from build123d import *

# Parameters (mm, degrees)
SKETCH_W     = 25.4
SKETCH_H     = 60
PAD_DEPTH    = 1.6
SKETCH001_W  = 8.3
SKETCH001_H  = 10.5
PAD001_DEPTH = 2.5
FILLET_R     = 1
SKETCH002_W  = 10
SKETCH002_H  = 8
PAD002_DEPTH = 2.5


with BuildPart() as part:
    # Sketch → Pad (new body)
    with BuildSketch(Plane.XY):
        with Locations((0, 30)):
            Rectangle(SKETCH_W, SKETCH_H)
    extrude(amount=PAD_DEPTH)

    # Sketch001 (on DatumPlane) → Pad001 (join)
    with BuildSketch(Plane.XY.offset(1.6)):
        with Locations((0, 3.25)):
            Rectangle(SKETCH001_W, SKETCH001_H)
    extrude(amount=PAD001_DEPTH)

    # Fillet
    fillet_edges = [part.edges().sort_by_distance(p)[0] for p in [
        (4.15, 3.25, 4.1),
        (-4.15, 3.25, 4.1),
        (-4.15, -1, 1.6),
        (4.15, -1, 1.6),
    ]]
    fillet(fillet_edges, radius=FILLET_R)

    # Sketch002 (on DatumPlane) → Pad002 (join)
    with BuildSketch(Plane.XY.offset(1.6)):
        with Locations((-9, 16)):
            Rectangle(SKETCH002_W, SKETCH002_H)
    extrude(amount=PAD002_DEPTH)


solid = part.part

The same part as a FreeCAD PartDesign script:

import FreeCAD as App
import Part
import Sketcher
from FreeCAD import Vector


def edges_at(feature, points):
    """Names of the edges that pass closest to the given points."""
    edges = feature.Shape.Edges
    near = lambda p: min(range(len(edges)), key=lambda i: edges[i].distToShape(Part.Vertex(*p))[0])
    return sorted({f"Edge{near(p) + 1}" for p in points})


def add_polygon(sketch, points):
    """Adds a closed chain of lines whose ends are joined by coincident constraints."""
    first, n = sketch.GeometryCount, len(points)
    for a, b in zip(points, points[1:] + points[:1]):
        sketch.addGeometry(Part.LineSegment(App.Vector(*a, 0), App.Vector(*b, 0)), False)
    for i in range(n):
        sketch.addConstraint(Sketcher.Constraint("Coincident", first + i, 2, first + (i + 1) % n, 1))

doc = App.newDocument("Part")
body = doc.addObject("PartDesign::Body", "Body")

sketch1 = doc.addObject("Sketcher::SketchObject", "Sketch")
body.addObject(sketch1)
sketch1.AttachmentSupport = (doc.XY_Plane, [""])
sketch1.MapMode = "FlatFace"
add_polygon(sketch1, [(-13, 60), (-13, 0), (13, 0), (13, 60)])
sketch1.addConstraint(Sketcher.Constraint("Vertical", 0))
sketch1.addConstraint(Sketcher.Constraint("Horizontal", 1))
sketch1.addConstraint(Sketcher.Constraint("Vertical", 2))
sketch1.addConstraint(Sketcher.Constraint("Horizontal", 3))
sketch1.addConstraint(Sketcher.Constraint("Symmetric", 0, 2, 1, 2, -1, 1))
sketch1.addConstraint(Sketcher.Constraint("DistanceY", 0, 2, 0, 1, 60.0))
sketch1.addConstraint(Sketcher.Constraint("DistanceX", 1, 1, 1, 2, 25.4))
pad1 = doc.addObject("PartDesign::Pad", "Pad")
body.addObject(pad1)
pad1.Profile = sketch1
pad1.Length = 1.6

sketch2 = doc.addObject("Sketcher::SketchObject", "Sketch001")
body.addObject(sketch2)
sketch2.AttachmentSupport = (doc.XY_Plane, [""])
sketch2.MapMode = "FlatFace"
sketch2.AttachmentOffset = App.Placement(Vector(0, 0, 1.6), App.Rotation())
add_polygon(sketch2, [(-4, 8), (-4, -2), (4, -2), (4, 8)])
sketch2.addConstraint(Sketcher.Constraint("Vertical", 0))
sketch2.addConstraint(Sketcher.Constraint("Horizontal", 1))
sketch2.addConstraint(Sketcher.Constraint("Vertical", 2))
sketch2.addConstraint(Sketcher.Constraint("Horizontal", 3))
sketch2.addConstraint(Sketcher.Constraint("DistanceX", 1, 1, 1, 2, 8.3))
sketch2.addConstraint(Sketcher.Constraint("DistanceY", 0, 2, 0, 1, 10.5))
sketch2.addConstraint(Sketcher.Constraint("DistanceY", 0, 2, -1, 1, 2.0))
sketch2.addConstraint(Sketcher.Constraint("DistanceX", 0, 2, -1, 1, 4.15))
pad2 = doc.addObject("PartDesign::Pad", "Pad001")
body.addObject(pad2)
pad2.Profile = sketch2
pad2.Length = 2.5
doc.recompute()

fillet = doc.addObject("PartDesign::Fillet", "Fillet")
body.addObject(fillet)
fillet.Base = (pad2, edges_at(pad2, [
    (4.15, 3.25, 4.1),
    (-4.15, 3.25, 4.1),
    (-4.15, -1, 1.6),
    (4.15, -1, 1.6),
]))
fillet.Radius = 1

sketch3 = doc.addObject("Sketcher::SketchObject", "Sketch002")
body.addObject(sketch3)
sketch3.AttachmentSupport = (doc.XY_Plane, [""])
sketch3.MapMode = "FlatFace"
sketch3.AttachmentOffset = App.Placement(Vector(0, 0, 1.6), App.Rotation())
add_polygon(sketch3, [(-14, 20), (-14, 12), (-4, 12), (-4, 20)])
sketch3.addConstraint(Sketcher.Constraint("Vertical", 0))
sketch3.addConstraint(Sketcher.Constraint("Horizontal", 1))
sketch3.addConstraint(Sketcher.Constraint("Vertical", 2))
sketch3.addConstraint(Sketcher.Constraint("Horizontal", 3))
sketch3.addConstraint(Sketcher.Constraint("DistanceX", 1, 1, 1, 2, 10.0))
sketch3.addConstraint(Sketcher.Constraint("DistanceY", 0, 2, 0, 1, 8.0))
sketch3.addConstraint(Sketcher.Constraint("DistanceX", 0, 2, -1, 1, 14.0))
sketch3.addConstraint(Sketcher.Constraint("DistanceY", -1, 1, 0, 2, 12.0))
pad3 = doc.addObject("PartDesign::Pad", "Pad002")
body.addObject(pad3)
pad3.Profile = sketch3
pad3.Length = 2.5

doc.recompute()
